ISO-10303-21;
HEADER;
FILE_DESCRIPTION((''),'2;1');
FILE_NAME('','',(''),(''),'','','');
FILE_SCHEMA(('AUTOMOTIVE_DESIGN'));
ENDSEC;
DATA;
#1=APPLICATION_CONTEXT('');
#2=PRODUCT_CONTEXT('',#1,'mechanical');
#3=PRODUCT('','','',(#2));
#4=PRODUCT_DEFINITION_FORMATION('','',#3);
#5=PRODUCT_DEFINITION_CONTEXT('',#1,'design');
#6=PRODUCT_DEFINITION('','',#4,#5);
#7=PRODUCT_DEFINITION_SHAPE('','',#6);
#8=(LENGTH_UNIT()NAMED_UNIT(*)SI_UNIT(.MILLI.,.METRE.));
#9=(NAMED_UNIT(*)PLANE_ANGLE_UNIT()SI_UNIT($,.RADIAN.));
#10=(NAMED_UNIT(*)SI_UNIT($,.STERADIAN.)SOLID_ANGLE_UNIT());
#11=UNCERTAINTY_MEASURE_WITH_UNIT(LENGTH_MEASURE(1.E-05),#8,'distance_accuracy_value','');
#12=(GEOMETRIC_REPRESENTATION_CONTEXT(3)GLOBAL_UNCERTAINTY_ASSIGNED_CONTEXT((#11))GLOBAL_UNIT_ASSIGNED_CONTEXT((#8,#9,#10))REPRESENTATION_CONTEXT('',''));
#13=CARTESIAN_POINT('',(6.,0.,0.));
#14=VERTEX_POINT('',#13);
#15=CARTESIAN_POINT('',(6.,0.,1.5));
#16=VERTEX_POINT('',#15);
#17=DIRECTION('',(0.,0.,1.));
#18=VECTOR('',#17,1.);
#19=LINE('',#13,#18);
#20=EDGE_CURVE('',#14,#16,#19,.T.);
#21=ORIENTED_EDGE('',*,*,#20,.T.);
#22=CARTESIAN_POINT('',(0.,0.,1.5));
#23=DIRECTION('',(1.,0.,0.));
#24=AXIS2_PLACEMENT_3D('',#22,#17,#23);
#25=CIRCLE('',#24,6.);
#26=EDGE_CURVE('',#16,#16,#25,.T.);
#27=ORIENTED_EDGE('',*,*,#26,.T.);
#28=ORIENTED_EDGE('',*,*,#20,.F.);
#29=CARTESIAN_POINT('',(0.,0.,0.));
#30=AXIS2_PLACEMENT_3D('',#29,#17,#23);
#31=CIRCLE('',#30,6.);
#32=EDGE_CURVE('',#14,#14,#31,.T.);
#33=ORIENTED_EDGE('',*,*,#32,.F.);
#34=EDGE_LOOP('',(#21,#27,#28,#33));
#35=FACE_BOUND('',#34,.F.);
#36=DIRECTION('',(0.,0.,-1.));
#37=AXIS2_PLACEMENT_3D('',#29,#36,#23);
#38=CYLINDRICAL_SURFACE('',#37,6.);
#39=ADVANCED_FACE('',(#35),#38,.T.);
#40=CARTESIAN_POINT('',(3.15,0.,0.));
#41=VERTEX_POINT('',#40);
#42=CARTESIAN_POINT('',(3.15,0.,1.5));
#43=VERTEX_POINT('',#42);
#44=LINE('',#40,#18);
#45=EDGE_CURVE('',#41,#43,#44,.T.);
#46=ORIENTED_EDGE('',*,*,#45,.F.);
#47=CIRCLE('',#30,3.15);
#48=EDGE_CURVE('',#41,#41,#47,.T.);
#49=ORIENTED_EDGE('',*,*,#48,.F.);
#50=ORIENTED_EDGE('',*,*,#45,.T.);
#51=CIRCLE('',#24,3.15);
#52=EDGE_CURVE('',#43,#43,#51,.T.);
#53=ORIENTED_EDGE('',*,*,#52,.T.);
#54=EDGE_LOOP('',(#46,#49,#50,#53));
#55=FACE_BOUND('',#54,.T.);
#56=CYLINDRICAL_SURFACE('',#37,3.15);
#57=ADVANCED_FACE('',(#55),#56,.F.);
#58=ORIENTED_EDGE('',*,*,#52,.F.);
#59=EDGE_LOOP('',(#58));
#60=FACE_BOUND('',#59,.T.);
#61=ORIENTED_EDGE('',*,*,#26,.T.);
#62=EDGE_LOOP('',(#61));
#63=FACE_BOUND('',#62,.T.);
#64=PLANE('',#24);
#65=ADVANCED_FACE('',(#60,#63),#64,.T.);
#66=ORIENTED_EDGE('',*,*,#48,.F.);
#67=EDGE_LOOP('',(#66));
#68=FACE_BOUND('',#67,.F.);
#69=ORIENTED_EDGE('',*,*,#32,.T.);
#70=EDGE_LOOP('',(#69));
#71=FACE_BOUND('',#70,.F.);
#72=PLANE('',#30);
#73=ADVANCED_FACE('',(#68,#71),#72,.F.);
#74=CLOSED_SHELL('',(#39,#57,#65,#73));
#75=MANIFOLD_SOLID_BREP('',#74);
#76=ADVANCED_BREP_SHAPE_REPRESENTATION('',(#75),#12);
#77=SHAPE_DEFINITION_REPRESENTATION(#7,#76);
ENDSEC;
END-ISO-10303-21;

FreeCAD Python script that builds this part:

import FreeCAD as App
import Part
import Sketcher

doc = App.newDocument("Part")
body = doc.addObject("PartDesign::Body", "Body")

# Sketch on XY plane
sketch1 = doc.addObject("Sketcher::SketchObject", "Sketch")
body.addObject(sketch1)
sketch1.AttachmentSupport = (doc.XY_Plane, [""])
sketch1.MapMode = "FlatFace"
sketch1.addGeometry(Part.Circle(App.Vector(0, 0, 0), App.Vector(0, 0, 1), 6), False)
sketch1.addGeometry(Part.Circle(App.Vector(0, 0, 0), App.Vector(0, 0, 1), 3.1), False)
sketch1.addConstraint(Sketcher.Constraint("Coincident", 0, 3, -1, 1))
sketch1.addConstraint(Sketcher.Constraint("Coincident", 1, 3, -1, 1))
sketch1.addConstraint(Sketcher.Constraint("Diameter", 0, 12.0))
sketch1.addConstraint(Sketcher.Constraint("Diameter", 1, 6.3))
pad1 = doc.addObject("PartDesign::Pad", "Pad")
body.addObject(pad1)
pad1.Profile = sketch1
pad1.Length = 1.5

doc.recompute()
